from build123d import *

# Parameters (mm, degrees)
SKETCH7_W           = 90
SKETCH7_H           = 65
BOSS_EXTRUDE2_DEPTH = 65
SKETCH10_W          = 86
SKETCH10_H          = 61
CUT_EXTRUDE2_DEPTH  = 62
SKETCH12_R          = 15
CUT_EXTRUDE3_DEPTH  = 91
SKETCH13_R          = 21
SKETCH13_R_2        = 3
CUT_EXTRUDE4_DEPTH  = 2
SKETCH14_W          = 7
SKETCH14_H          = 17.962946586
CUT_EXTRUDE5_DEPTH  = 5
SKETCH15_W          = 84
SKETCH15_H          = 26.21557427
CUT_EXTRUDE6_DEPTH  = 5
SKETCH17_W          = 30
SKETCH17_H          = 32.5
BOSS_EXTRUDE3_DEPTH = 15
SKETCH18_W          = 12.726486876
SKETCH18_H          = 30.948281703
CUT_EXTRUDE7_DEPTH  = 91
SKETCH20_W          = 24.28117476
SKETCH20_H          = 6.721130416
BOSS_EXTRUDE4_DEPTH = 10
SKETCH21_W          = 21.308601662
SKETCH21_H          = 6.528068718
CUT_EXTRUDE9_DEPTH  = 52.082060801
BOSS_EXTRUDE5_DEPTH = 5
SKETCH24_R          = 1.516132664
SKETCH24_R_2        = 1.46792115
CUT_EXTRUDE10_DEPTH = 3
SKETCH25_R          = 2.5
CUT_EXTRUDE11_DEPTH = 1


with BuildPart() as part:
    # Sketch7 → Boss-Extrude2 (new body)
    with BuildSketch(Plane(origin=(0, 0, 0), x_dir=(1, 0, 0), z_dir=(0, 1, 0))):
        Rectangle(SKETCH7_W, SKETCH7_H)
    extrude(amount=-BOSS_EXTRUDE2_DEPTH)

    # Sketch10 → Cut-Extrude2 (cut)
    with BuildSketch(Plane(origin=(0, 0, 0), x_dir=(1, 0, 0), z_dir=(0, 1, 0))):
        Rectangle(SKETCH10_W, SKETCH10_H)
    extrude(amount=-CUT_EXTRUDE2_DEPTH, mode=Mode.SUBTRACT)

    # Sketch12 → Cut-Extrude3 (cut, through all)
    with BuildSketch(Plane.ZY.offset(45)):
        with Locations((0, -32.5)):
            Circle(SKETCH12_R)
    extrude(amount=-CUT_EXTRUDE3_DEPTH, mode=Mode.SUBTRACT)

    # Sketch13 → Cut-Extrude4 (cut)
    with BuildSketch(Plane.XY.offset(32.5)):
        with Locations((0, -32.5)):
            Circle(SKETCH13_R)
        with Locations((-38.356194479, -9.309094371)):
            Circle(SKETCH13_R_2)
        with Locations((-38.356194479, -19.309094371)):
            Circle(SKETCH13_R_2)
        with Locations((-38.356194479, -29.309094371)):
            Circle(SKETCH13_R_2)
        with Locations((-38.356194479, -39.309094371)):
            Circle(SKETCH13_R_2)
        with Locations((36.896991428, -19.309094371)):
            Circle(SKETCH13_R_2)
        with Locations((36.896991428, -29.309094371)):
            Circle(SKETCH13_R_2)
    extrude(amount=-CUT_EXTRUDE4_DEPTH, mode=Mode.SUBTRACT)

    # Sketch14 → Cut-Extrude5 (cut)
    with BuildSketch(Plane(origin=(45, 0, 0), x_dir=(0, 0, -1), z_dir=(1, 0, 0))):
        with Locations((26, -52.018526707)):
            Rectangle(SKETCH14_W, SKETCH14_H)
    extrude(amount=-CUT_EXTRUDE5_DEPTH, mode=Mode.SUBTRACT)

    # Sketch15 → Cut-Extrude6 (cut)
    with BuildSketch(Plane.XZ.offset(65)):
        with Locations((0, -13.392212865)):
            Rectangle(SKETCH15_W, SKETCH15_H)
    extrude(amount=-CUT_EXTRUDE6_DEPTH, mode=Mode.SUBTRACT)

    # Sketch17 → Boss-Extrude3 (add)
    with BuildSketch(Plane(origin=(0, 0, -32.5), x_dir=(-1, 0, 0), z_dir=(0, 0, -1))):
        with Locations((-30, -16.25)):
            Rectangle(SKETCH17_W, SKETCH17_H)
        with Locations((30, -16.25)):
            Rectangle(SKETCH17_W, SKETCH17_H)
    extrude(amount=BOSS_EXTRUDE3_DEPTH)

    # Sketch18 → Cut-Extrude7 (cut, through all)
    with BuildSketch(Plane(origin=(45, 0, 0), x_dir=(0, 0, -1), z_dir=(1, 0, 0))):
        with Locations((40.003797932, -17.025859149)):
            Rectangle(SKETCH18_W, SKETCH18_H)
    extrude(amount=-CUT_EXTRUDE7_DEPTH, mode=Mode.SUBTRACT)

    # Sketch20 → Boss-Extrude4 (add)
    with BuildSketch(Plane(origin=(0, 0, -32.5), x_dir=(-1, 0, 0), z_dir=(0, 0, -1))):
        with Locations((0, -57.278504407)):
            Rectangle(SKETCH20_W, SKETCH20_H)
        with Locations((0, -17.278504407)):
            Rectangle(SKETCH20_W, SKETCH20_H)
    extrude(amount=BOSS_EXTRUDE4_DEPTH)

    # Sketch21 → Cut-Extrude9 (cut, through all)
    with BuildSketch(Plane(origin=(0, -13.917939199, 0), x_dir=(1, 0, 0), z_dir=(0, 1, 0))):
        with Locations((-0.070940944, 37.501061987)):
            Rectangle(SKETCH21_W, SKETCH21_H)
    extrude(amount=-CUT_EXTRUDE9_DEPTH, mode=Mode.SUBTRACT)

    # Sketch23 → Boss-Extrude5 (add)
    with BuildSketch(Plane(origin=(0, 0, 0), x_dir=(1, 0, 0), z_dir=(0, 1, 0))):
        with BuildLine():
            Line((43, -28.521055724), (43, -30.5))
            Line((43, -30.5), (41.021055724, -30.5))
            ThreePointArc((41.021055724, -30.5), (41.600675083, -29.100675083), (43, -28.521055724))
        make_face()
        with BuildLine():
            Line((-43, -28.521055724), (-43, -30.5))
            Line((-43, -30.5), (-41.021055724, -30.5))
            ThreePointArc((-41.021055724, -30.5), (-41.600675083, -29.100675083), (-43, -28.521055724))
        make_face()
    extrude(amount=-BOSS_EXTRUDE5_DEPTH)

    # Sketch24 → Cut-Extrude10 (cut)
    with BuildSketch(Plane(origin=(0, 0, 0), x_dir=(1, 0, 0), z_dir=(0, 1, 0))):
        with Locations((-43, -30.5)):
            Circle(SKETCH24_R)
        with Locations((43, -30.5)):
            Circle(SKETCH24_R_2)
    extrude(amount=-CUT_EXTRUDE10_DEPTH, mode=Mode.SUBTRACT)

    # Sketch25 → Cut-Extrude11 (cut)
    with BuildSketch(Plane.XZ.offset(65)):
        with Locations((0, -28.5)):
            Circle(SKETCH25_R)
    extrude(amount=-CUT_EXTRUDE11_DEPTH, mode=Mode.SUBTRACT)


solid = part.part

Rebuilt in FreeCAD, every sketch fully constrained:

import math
import FreeCAD as App
import Part
import Sketcher

V = App.Vector

doc = App.newDocument("Part")
params = doc.addObject("Spreadsheet::Sheet", "Params")
for row, (alias, value) in enumerate([
    ("sketch1_width", "90 mm"),
    ("sketch1_height", "65 mm"),
    ("pad1_length", "65 mm"),
    ("sketch2_width", "86 mm"),
    ("sketch2_height", "61 mm"),
    ("pocket1_length", "62 mm"),
    ("sketch3_diameter", "30 mm"),
    ("sketch4_diameter", "42 mm"),
    ("sketch4_diameter2", "6 mm"),
    ("pocket3_length", "2 mm"),
    ("sketch5_height", "7 mm"),
    ("pocket4_length", "5 mm"),
    ("sketch6_width", "84 mm"),
    ("pocket5_length", "5 mm"),
    ("sketch7_width", "30 mm"),
    ("sketch7_height", "32.5 mm"),
    ("pad2_length", "15 mm"),
    ("pad3_length", "10 mm"),
    ("pad4_length", "5 mm"),
    ("pocket8_length", "3 mm"),
    ("sketch13_diameter", "5 mm"),
    ("pocket9_length", "1 mm"),
], start=1):
    params.set(f"A{row}", alias)
    params.set(f"B{row}", "=" + value)
    params.setAlias(f"B{row}", alias)

body = doc.addObject("PartDesign::Body", "Body")

sketch1 = body.newObject("Sketcher::SketchObject", "Sketch")
sketch1.AttachmentSupport = (doc.getObject("XZ_Plane"), [""])
sketch1.MapMode = "FlatFace"
sketch1.addGeometry([
    Part.LineSegment(V(-45, -32.5, 0), V(-45, 32.5, 0)),
    Part.LineSegment(V(-45, 32.5, 0), V(45, 32.5, 0)),
    Part.LineSegment(V(45, 32.5, 0), V(45, -32.5, 0)),
    Part.LineSegment(V(45, -32.5, 0), V(-45, -32.5, 0)),
], False)
sketch1.addConstraint([
    Sketcher.Constraint("Coincident", 0, 2, 1, 1),
    Sketcher.Constraint("Coincident", 1, 2, 2, 1),
    Sketcher.Constraint("Coincident", 2, 2, 3, 1),
    Sketcher.Constraint("Coincident", 3, 2, 0, 1),
    Sketcher.Constraint("Vertical", 0),
    Sketcher.Constraint("Horizontal", 1),
    Sketcher.Constraint("Vertical", 2),
    Sketcher.Constraint("Horizontal", 3),
    Sketcher.Constraint("Symmetric", 0, 2, 2, 2, -1, 1),
    Sketcher.Constraint("DistanceX", 1, 1, 1, 2, 90.0),
    Sketcher.Constraint("DistanceY", 0, 1, 0, 2, 65.0),
])
sketch1.setExpression("Constraints[9]", "Params.sketch1_width")
sketch1.setExpression("Constraints[10]", "Params.sketch1_height")
pad1 = body.newObject("PartDesign::Pad", "Pad")
pad1.Profile = sketch1
pad1.setExpression("Length", "Params.pad1_length")

sketch2 = body.newObject("Sketcher::SketchObject", "Sketch001")
sketch2.AttachmentSupport = (doc.getObject("XZ_Plane"), [""])
sketch2.MapMode = "FlatFace"
sketch2.addGeometry([
    Part.LineSegment(V(-43, -30.5, 0), V(-43, 30.5, 0)),
    Part.LineSegment(V(-43, 30.5, 0), V(43, 30.5, 0)),
    Part.LineSegment(V(43, 30.5, 0), V(43, -30.5, 0)),
    Part.LineSegment(V(43, -30.5, 0), V(-43, -30.5, 0)),
], False)
sketch2.addConstraint([
    Sketcher.Constraint("Coincident", 0, 2, 1, 1),
    Sketcher.Constraint("Coincident", 1, 2, 2, 1),
    Sketcher.Constraint("Coincident", 2, 2, 3, 1),
    Sketcher.Constraint("Coincident", 3, 2, 0, 1),
    Sketcher.Constraint("Vertical", 0),
    Sketcher.Constraint("Horizontal", 1),
    Sketcher.Constraint("Vertical", 2),
    Sketcher.Constraint("Horizontal", 3),
    Sketcher.Constraint("Symmetric", 0, 2, 2, 2, -1, 1),
    Sketcher.Constraint("DistanceX", 1, 1, 1, 2, 86.0),
    Sketcher.Constraint("DistanceY", 0, 1, 0, 2, 61.0),
])
sketch2.setExpression("Constraints[9]", "Params.sketch2_width")
sketch2.setExpression("Constraints[10]", "Params.sketch2_height")
pocket1 = body.newObject("PartDesign::Pocket", "Pocket")
pocket1.Profile = sketch2
pocket1.setExpression("Length", "Params.pocket1_length")
pocket1.Reversed = True

sketch3 = body.newObject("Sketcher::SketchObject", "Sketch002")
sketch3.AttachmentSupport = (doc.getObject("YZ_Plane"), [""])
sketch3.MapMode = "FlatFace"
sketch3.AttachmentOffset = App.Placement(V(0, 0, -45), App.Rotation())
sketch3.addGeometry(Part.Circle(V(-32.5, 0, 0), V(0, 0, 1), 15), False)
sketch3.addConstraint([
    Sketcher.Constraint("PointOnObject", 0, 3, -1),
    Sketcher.Constraint("Diameter", 0, 30.0),
    Sketcher.Constraint("DistanceX", 0, 3, -1, 1, 32.5),
])
sketch3.setExpression("Constraints[1]", "Params.sketch3_diameter")
pocket2 = body.newObject("PartDesign::Pocket", "Pocket001")
pocket2.Profile = sketch3
pocket2.Type = "ThroughAll"
pocket2.Reversed = True

sketch4 = body.newObject("Sketcher::SketchObject", "Sketch003")
sketch4.AttachmentSupport = (doc.getObject("XY_Plane"), [""])
sketch4.MapMode = "FlatFace"
sketch4.AttachmentOffset = App.Placement(V(0, 0, 32.5), App.Rotation())
sketch4.addGeometry([
    Part.Circle(V(0, -32.5, 0), V(0, 0, 1), 21),
    Part.Circle(V(-38.356194, -9.309094, 0), V(0, 0, 1), 3),
    Part.Circle(V(-38.356194, -19.309094, 0), V(0, 0, 1), 3),
    Part.Circle(V(-38.356194, -29.309094, 0), V(0, 0, 1), 3),
    Part.Circle(V(-38.356194, -39.309094, 0), V(0, 0, 1), 3),
    Part.Circle(V(36.896991, -19.309094, 0), V(0, 0, 1), 3),
    Part.Circle(V(36.896991, -29.309094, 0), V(0, 0, 1), 3),
], False)
sketch4.addConstraint([
    Sketcher.Constraint("Equal", 1, 2),
    Sketcher.Constraint("Equal", 2, 3),
    Sketcher.Constraint("Equal", 3, 4),
    Sketcher.Constraint("Equal", 4, 5),
    Sketcher.Constraint("Equal", 5, 6),
    Sketcher.Constraint("PointOnObject", 0, 3, -2),
    Sketcher.Constraint("Horizontal", 2, 3, 5, 3),
    Sketcher.Constraint("Horizontal", 3, 3, 6, 3),
    Sketcher.Constraint("Vertical", 1, 3, 2, 3),
    Sketcher.Constraint("Vertical", 2, 3, 3, 3),
    Sketcher.Constraint("Vertical", 3, 3, 4, 3),
    Sketcher.Constraint("Vertical", 5, 3, 6, 3),
    Sketcher.Constraint("Diameter", 0, 42.0),
    Sketcher.Constraint("Diameter", 1, 6.0),
    Sketcher.Constraint("DistanceY", 2, 3, 1, 3, 10.0),
    Sketcher.Constraint("DistanceY", 3, 3, 2, 3, 10.0),
    Sketcher.Constraint("DistanceY", 4, 3, 3, 3, 10.0),
    Sketcher.Constraint("DistanceY", 0, 3, -1, 1, 32.5),
    Sketcher.Constraint("DistanceX", -1, 1, 5, 3, 36.896991),
    Sketcher.Constraint("DistanceX", 1, 3, -1, 1, 38.356194),
    Sketcher.Constraint("DistanceY", 1, 3, -1, 1, 9.309094),
])
sketch4.setExpression("Constraints[12]", "Params.sketch4_diameter")
sketch4.setExpression("Constraints[13]", "Params.sketch4_diameter2")
pocket3 = body.newObject("PartDesign::Pocket", "Pocket002")
pocket3.Profile = sketch4
pocket3.setExpression("Length", "Params.pocket3_length")

sketch5 = body.newObject("Sketcher::SketchObject", "Sketch004")
sketch5.AttachmentSupport = (doc.getObject("YZ_Plane"), [""])
sketch5.MapMode = "FlatFace"
sketch5.AttachmentOffset = App.Placement(V(0, 0, 45), App.Rotation())
sketch5.addGeometry([
    Part.LineSegment(V(-43.037053, -22.5, 0), V(-61, -22.5, 0)),
    Part.LineSegment(V(-61, -22.5, 0), V(-61, -29.5, 0)),
    Part.LineSegment(V(-61, -29.5, 0), V(-43.037053, -29.5, 0)),
    Part.LineSegment(V(-43.037053, -29.5, 0), V(-43.037053, -22.5, 0)),
], False)
sketch5.addConstraint([
    Sketcher.Constraint("Coincident", 0, 2, 1, 1),
    Sketcher.Constraint("Coincident", 1, 2, 2, 1),
    Sketcher.Constraint("Coincident", 2, 2, 3, 1),
    Sketcher.Constraint("Coincident", 3, 2, 0, 1),
    Sketcher.Constraint("Horizontal", 0),
    Sketcher.Constraint("Vertical", 1),
    Sketcher.Constraint("Horizontal", 2),
    Sketcher.Constraint("Vertical", 3),
    Sketcher.Constraint("DistanceY", 1, 2, 1, 1, 7.0),
    Sketcher.Constraint("DistanceX", 0, 2, -1, 1, 61.0),
    Sketcher.Constraint("DistanceY", 0, 2, -1, 1, 22.5),
    Sketcher.Constraint("DistanceX", 0, 2, 0, 1, 17.962947),
])
sketch5.setExpression("Constraints[8]", "Params.sketch5_height")
pocket4 = body.newObject("PartDesign::Pocket", "Pocket003")
pocket4.Profile = sketch5
pocket4.setExpression("Length", "Params.pocket4_length")

sketch6 = body.newObject("Sketcher::SketchObject", "Sketch005")
sketch6.AttachmentSupport = (doc.getObject("XZ_Plane"), [""])
sketch6.MapMode = "FlatFace"
sketch6.AttachmentOffset = App.Placement(V(0, 0, 65), App.Rotation())
sketch6.addGeometry([
    Part.LineSegment(V(-42, -0.284426, 0), V(-42, -26.5, 0)),
    Part.LineSegment(V(-42, -26.5, 0), V(42, -26.5, 0)),
    Part.LineSegment(V(42, -26.5, 0), V(42, -0.284426, 0)),
    Part.LineSegment(V(42, -0.284426, 0), V(-42, -0.284426, 0)),
], False)
sketch6.addConstraint([
    Sketcher.Constraint("Coincident", 0, 2, 1, 1),
    Sketcher.Constraint("Coincident", 1, 2, 2, 1),
    Sketcher.Constraint("Coincident", 2, 2, 3, 1),
    Sketcher.Constraint("Coincident", 3, 2, 0, 1),
    Sketcher.Constraint("Vertical", 0),
    Sketcher.Constraint("Horizontal", 1),
    Sketcher.Constraint("Vertical", 2),
    Sketcher.Constraint("Horizontal", 3),
    Sketcher.Constraint("DistanceX", 1, 1, 1, 2, 84.0),
    Sketcher.Constraint("DistanceX", 0, 2, -1, 1, 42.0),
    Sketcher.Constraint("DistanceY", 0, 2, -1, 1, 26.5),
    Sketcher.Constraint("DistanceY", 0, 2, 0, 1, 26.215574),
])
sketch6.setExpression("Constraints[8]", "Params.sketch6_width")
pocket5 = body.newObject("PartDesign::Pocket", "Pocket004")
pocket5.Profile = sketch6
pocket5.setExpression("Length", "Params.pocket5_length")

sketch7 = body.newObject("Sketcher::SketchObject", "Sketch006")
sketch7.AttachmentSupport = (doc.getObject("XY_Plane"), [""])
sketch7.MapMode = "FlatFace"
sketch7.AttachmentOffset = App.Placement(V(0, 0, -32.5), App.Rotation())
sketch7.addGeometry([
    Part.LineSegment(V(45, 0, 0), V(45, -32.5, 0)),
    Part.LineSegment(V(45, -32.5, 0), V(15, -32.5, 0)),
    Part.LineSegment(V(15, -32.5, 0), V(15, 0, 0)),
    Part.LineSegment(V(15, 0, 0), V(45, 0, 0)),
    Part.LineSegment(V(-15, 0, 0), V(-15, -32.5, 0)),
    Part.LineSegment(V(-15, -32.5, 0), V(-45, -32.5, 0)),
    Part.LineSegment(V(-45, -32.5, 0), V(-45, 0, 0)),
    Part.LineSegment(V(-45, 0, 0), V(-15, 0, 0)),
], False)
sketch7.addConstraint([
    Sketcher.Constraint("Coincident", 0, 2, 1, 1),
    Sketcher.Constraint("Coincident", 1, 2, 2, 1),
    Sketcher.Constraint("Coincident", 2, 2, 3, 1),
    Sketcher.Constraint("Coincident", 3, 2, 0, 1),
    Sketcher.Constraint("Coincident", 4, 2, 5, 1),
    Sketcher.Constraint("Coincident", 5, 2, 6, 1),
    Sketcher.Constraint("Coincident", 6, 2, 7, 1),
    Sketcher.Constraint("Coincident", 7, 2, 4, 1),
    Sketcher.Constraint("Vertical", 0),
    Sketcher.Constraint("Horizontal", 1),
    Sketcher.Constraint("Vertical", 2),
    Sketcher.Constraint("Horizontal", 3),
    Sketcher.Constraint("Vertical", 4),
    Sketcher.Constraint("Horizontal", 5),
    Sketcher.Constraint("Vertical", 6),
    Sketcher.Constraint("Horizontal", 7),
    Sketcher.Constraint("Symmetric", 3, 2, 6, 2, -1, 1),
    Sketcher.Constraint("Symmetric", 1, 2, 4, 2, -2),
    Sketcher.Constraint("PointOnObject", 2, 2, -1),
    Sketcher.Constraint("DistanceX", 1, 2, 1, 1, 30.0),
    Sketcher.Constraint("DistanceY", 0, 2, 0, 1, 32.5),
    Sketcher.Constraint("DistanceX", -1, 1, 0, 2, 45.0),
])
sketch7.setExpression("Constraints[19]", "Params.sketch7_width")
sketch7.setExpression("Constraints[20]", "Params.sketch7_height")
pad2 = body.newObject("PartDesign::Pad", "Pad001")
pad2.Profile = sketch7
pad2.setExpression("Length", "Params.pad2_length")
pad2.Reversed = True

sketch8 = body.newObject("Sketcher::SketchObject", "Sketch007")
sketch8.AttachmentSupport = (doc.getObject("YZ_Plane"), [""])
sketch8.MapMode = "FlatFace"
sketch8.AttachmentOffset = App.Placement(V(0, 0, 45), App.Rotation())
sketch8.addGeometry([
    Part.LineSegment(V(-1.551718, -33.640554, 0), V(-32.5, -33.640554, 0)),
    Part.LineSegment(V(-32.5, -33.640554, 0), V(-32.5, -46.367041, 0)),
    Part.LineSegment(V(-32.5, -46.367041, 0), V(-1.551718, -46.367041, 0)),
    Part.LineSegment(V(-1.551718, -46.367041, 0), V(-1.551718, -33.640554, 0)),
], False)
sketch8.addConstraint([
    Sketcher.Constraint("Coincident", 0, 2, 1, 1),
    Sketcher.Constraint("Coincident", 1, 2, 2, 1),
    Sketcher.Constraint("Coincident", 2, 2, 3, 1),
    Sketcher.Constraint("Coincident", 3, 2, 0, 1),
    Sketcher.Constraint("Horizontal", 0),
    Sketcher.Constraint("Vertical", 1),
    Sketcher.Constraint("Horizontal", 2),
    Sketcher.Constraint("Vertical", 3),
    Sketcher.Constraint("DistanceX", 0, 2, -1, 1, 32.5),
    Sketcher.Constraint("DistanceX", 0, 2, 0, 1, 30.948282),
    Sketcher.Constraint("DistanceY", 1, 2, 1, 1, 12.726487),
    Sketcher.Constraint("DistanceY", 1, 2, -1, 1, 46.367041),
])
pocket6 = body.newObject("PartDesign::Pocket", "Pocket005")
pocket6.Profile = sketch8
pocket6.Type = "ThroughAll"

sketch9 = body.newObject("Sketcher::SketchObject", "Sketch008")
sketch9.AttachmentSupport = (doc.getObject("XY_Plane"), [""])
sketch9.MapMode = "FlatFace"
sketch9.AttachmentOffset = App.Placement(V(0, 0, -32.5), App.Rotation())
sketch9.addGeometry([
    Part.LineSegment(V(12.140587, -53.917939, 0), V(12.140587, -60.63907, 0)),
    Part.LineSegment(V(12.140587, -60.63907, 0), V(-12.140587, -60.63907, 0)),
    Part.LineSegment(V(-12.140587, -60.63907, 0), V(-12.140587, -53.917939, 0)),
    Part.LineSegment(V(-12.140587, -53.917939, 0), V(12.140587, -53.917939, 0)),
    Part.LineSegment(V(12.140587, -13.917939, 0), V(12.140587, -20.63907, 0)),
    Part.LineSegment(V(12.140587, -20.63907, 0), V(-12.140587, -20.63907, 0)),
    Part.LineSegment(V(-12.140587, -20.63907, 0), V(-12.140587, -13.917939, 0)),
    Part.LineSegment(V(-12.140587, -13.917939, 0), V(12.140587, -13.917939, 0)),
], False)
sketch9.addConstraint([
    Sketcher.Constraint("Coincident", 0, 2, 1, 1),
    Sketcher.Constraint("Coincident", 1, 2, 2, 1),
    Sketcher.Constraint("Coincident", 2, 2, 3, 1),
    Sketcher.Constraint("Coincident", 3, 2, 0, 1),
    Sketcher.Constraint("Coincident", 4, 2, 5, 1),
    Sketcher.Constraint("Coincident", 5, 2, 6, 1),
    Sketcher.Constraint("Coincident", 6, 2, 7, 1),
    Sketcher.Constraint("Coincident", 7, 2, 4, 1),
    Sketcher.Constraint("Vertical", 0),
    Sketcher.Constraint("Horizontal", 1),
    Sketcher.Constraint("Vertical", 2),
    Sketcher.Constraint("Horizontal", 3),
    Sketcher.Constraint("Vertical", 4),
    Sketcher.Constraint("Horizontal", 5),
    Sketcher.Constraint("Vertical", 6),
    Sketcher.Constraint("Horizontal", 7),
    Sketcher.Constraint("Vertical", 3, 2, 4, 2),
    Sketcher.Constraint("Vertical", 2, 2, 5, 2),
    Sketcher.Constraint("Equal", 2, 4),
    Sketcher.Constraint("DistanceY", 0, 2, 4, 2, 40.0),
    Sketcher.Constraint("DistanceY", 0, 2, 0, 1, 6.72113),
    Sketcher.Constraint("DistanceX", 1, 2, 1, 1, 24.281175),
    Sketcher.Constraint("DistanceY", 0, 2, -1, 1, 60.63907),
    Sketcher.Constraint("DistanceX", -1, 1, 0, 2, 12.140587),
])
pad3 = body.newObject("PartDesign::Pad", "Pad002")
pad3.Profile = sketch9
pad3.setExpression("Length", "Params.pad3_length")
pad3.Reversed = True

sketch10 = body.newObject("Sketcher::SketchObject", "Sketch009")
sketch10.AttachmentSupport = (doc.getObject("XZ_Plane"), [""])
sketch10.MapMode = "FlatFace"
sketch10.AttachmentOffset = App.Placement(V(0, 0, 13.917939), App.Rotation())
sketch10.addGeometry([
    Part.LineSegment(V(-10.725242, -40.765096, 0), V(-10.725242, -34.237028, 0)),
    Part.LineSegment(V(-10.725242, -34.237028, 0), V(10.58336, -34.237028, 0)),
    Part.LineSegment(V(10.58336, -34.237028, 0), V(10.58336, -40.765096, 0)),
    Part.LineSegment(V(10.58336, -40.765096, 0), V(-10.725242, -40.765096, 0)),
], False)
sketch10.addConstraint([
    Sketcher.Constraint("Coincident", 0, 2, 1, 1),
    Sketcher.Constraint("Coincident", 1, 2, 2, 1),
    Sketcher.Constraint("Coincident", 2, 2, 3, 1),
    Sketcher.Constraint("Coincident", 3, 2, 0, 1),
    Sketcher.Constraint("Vertical", 0),
    Sketcher.Constraint("Horizontal", 1),
    Sketcher.Constraint("Vertical", 2),
    Sketcher.Constraint("Horizontal", 3),
    Sketcher.Constraint("DistanceX", 1, 1, 1, 2, 21.308602),
    Sketcher.Constraint("DistanceY", 0, 1, 0, 2, 6.528069),
    Sketcher.Constraint("DistanceX", 0, 2, -1, 1, 10.725242),
    Sketcher.Constraint("DistanceY", 0, 2, -1, 1, 34.237028),
])
pocket7 = body.newObject("PartDesign::Pocket", "Pocket006")
pocket7.Profile = sketch10
pocket7.Type = "ThroughAll"
pocket7.Reversed = True

sketch11 = body.newObject("Sketcher::SketchObject", "Sketch010")
sketch11.AttachmentSupport = (doc.getObject("XZ_Plane"), [""])
sketch11.MapMode = "FlatFace"
sketch11.addGeometry([
    Part.LineSegment(V(43, 30.5, 0), V(43, 28.521056, 0)),
    Part.ArcOfCircle(Part.Circle(V(43, 30.5, 0), V(0, 0, 1), 1.978944), math.radians(-180), math.radians(-90)),
    Part.LineSegment(V(41.021056, 30.5, 0), V(43, 30.5, 0)),
    Part.LineSegment(V(-43, 28.521056, 0), V(-43, 30.5, 0)),
    Part.LineSegment(V(-43, 30.5, 0), V(-41.021056, 30.5, 0)),
    Part.ArcOfCircle(Part.Circle(V(-43, 30.5, 0), V(0, 0, 1), 1.978944), math.radians(-90), math.radians(0)),
], False)
sketch11.addConstraint([
    Sketcher.Constraint("Coincident", 0, 2, 1, 2),
    Sketcher.Constraint("Coincident", 1, 1, 2, 1),
    Sketcher.Constraint("Coincident", 2, 2, 0, 1),
    Sketcher.Constraint("Coincident", 3, 2, 4, 1),
    Sketcher.Constraint("Coincident", 4, 2, 5, 2),
    Sketcher.Constraint("Coincident", 5, 1, 3, 1),
    Sketcher.Constraint("Vertical", 0),
    Sketcher.Constraint("Horizontal", 2),
    Sketcher.Constraint("Vertical", 3),
    Sketcher.Constraint("Horizontal", 4),
    Sketcher.Constraint("Coincident", 2, 2, 1, 3),
    Sketcher.Constraint("Coincident", 3, 2, 5, 3),
    Sketcher.Constraint("Equal", 1, 5),
    Sketcher.Constraint("Symmetric", 1, 3, 5, 3, -2),
    Sketcher.Constraint("DistanceX", -1, 1, 1, 3, 43.0),
    Sketcher.Constraint("DistanceY", -1, 1, 1, 3, 30.5),
    Sketcher.Constraint("Radius", 1, 1.978944),
])
pad4 = body.newObject("PartDesign::Pad", "Pad003")
pad4.Profile = sketch11
pad4.setExpression("Length", "Params.pad4_length")

sketch12 = body.newObject("Sketcher::SketchObject", "Sketch011")
sketch12.AttachmentSupport = (doc.getObject("XZ_Plane"), [""])
sketch12.MapMode = "FlatFace"
sketch12.addGeometry([
    Part.Circle(V(-43, 30.5, 0), V(0, 0, 1), 1.516133),
    Part.Circle(V(43, 30.5, 0), V(0, 0, 1), 1.467921),
], False)
sketch12.addConstraint([
    Sketcher.Constraint("Symmetric", 0, 3, 1, 3, -2),
    Sketcher.Constraint("DistanceX", 0, 3, -1, 1, 43.0),
    Sketcher.Constraint("DistanceY", -1, 1, 0, 3, 30.5),
    Sketcher.Constraint("Diameter", 0, 3.032265),
    Sketcher.Constraint("Diameter", 1, 2.935842),
])
pocket8 = body.newObject("PartDesign::Pocket", "Pocket007")
pocket8.Profile = sketch12
pocket8.setExpression("Length", "Params.pocket8_length")
pocket8.Reversed = True

sketch13 = body.newObject("Sketcher::SketchObject", "Sketch012")
sketch13.AttachmentSupport = (doc.getObject("XZ_Plane"), [""])
sketch13.MapMode = "FlatFace"
sketch13.AttachmentOffset = App.Placement(V(0, 0, 65), App.Rotation())
sketch13.addGeometry(Part.Circle(V(0, -28.5, 0), V(0, 0, 1), 2.5), False)
sketch13.addConstraint([
    Sketcher.Constraint("PointOnObject", 0, 3, -2),
    Sketcher.Constraint("Diameter", 0, 5.0),
    Sketcher.Constraint("DistanceY", 0, 3, -1, 1, 28.5),
])
sketch13.setExpression("Constraints[1]", "Params.sketch13_diameter")
pocket9 = body.newObject("PartDesign::Pocket", "Pocket008")
pocket9.Profile = sketch13
pocket9.setExpression("Length", "Params.pocket9_length")

doc.recompute()
